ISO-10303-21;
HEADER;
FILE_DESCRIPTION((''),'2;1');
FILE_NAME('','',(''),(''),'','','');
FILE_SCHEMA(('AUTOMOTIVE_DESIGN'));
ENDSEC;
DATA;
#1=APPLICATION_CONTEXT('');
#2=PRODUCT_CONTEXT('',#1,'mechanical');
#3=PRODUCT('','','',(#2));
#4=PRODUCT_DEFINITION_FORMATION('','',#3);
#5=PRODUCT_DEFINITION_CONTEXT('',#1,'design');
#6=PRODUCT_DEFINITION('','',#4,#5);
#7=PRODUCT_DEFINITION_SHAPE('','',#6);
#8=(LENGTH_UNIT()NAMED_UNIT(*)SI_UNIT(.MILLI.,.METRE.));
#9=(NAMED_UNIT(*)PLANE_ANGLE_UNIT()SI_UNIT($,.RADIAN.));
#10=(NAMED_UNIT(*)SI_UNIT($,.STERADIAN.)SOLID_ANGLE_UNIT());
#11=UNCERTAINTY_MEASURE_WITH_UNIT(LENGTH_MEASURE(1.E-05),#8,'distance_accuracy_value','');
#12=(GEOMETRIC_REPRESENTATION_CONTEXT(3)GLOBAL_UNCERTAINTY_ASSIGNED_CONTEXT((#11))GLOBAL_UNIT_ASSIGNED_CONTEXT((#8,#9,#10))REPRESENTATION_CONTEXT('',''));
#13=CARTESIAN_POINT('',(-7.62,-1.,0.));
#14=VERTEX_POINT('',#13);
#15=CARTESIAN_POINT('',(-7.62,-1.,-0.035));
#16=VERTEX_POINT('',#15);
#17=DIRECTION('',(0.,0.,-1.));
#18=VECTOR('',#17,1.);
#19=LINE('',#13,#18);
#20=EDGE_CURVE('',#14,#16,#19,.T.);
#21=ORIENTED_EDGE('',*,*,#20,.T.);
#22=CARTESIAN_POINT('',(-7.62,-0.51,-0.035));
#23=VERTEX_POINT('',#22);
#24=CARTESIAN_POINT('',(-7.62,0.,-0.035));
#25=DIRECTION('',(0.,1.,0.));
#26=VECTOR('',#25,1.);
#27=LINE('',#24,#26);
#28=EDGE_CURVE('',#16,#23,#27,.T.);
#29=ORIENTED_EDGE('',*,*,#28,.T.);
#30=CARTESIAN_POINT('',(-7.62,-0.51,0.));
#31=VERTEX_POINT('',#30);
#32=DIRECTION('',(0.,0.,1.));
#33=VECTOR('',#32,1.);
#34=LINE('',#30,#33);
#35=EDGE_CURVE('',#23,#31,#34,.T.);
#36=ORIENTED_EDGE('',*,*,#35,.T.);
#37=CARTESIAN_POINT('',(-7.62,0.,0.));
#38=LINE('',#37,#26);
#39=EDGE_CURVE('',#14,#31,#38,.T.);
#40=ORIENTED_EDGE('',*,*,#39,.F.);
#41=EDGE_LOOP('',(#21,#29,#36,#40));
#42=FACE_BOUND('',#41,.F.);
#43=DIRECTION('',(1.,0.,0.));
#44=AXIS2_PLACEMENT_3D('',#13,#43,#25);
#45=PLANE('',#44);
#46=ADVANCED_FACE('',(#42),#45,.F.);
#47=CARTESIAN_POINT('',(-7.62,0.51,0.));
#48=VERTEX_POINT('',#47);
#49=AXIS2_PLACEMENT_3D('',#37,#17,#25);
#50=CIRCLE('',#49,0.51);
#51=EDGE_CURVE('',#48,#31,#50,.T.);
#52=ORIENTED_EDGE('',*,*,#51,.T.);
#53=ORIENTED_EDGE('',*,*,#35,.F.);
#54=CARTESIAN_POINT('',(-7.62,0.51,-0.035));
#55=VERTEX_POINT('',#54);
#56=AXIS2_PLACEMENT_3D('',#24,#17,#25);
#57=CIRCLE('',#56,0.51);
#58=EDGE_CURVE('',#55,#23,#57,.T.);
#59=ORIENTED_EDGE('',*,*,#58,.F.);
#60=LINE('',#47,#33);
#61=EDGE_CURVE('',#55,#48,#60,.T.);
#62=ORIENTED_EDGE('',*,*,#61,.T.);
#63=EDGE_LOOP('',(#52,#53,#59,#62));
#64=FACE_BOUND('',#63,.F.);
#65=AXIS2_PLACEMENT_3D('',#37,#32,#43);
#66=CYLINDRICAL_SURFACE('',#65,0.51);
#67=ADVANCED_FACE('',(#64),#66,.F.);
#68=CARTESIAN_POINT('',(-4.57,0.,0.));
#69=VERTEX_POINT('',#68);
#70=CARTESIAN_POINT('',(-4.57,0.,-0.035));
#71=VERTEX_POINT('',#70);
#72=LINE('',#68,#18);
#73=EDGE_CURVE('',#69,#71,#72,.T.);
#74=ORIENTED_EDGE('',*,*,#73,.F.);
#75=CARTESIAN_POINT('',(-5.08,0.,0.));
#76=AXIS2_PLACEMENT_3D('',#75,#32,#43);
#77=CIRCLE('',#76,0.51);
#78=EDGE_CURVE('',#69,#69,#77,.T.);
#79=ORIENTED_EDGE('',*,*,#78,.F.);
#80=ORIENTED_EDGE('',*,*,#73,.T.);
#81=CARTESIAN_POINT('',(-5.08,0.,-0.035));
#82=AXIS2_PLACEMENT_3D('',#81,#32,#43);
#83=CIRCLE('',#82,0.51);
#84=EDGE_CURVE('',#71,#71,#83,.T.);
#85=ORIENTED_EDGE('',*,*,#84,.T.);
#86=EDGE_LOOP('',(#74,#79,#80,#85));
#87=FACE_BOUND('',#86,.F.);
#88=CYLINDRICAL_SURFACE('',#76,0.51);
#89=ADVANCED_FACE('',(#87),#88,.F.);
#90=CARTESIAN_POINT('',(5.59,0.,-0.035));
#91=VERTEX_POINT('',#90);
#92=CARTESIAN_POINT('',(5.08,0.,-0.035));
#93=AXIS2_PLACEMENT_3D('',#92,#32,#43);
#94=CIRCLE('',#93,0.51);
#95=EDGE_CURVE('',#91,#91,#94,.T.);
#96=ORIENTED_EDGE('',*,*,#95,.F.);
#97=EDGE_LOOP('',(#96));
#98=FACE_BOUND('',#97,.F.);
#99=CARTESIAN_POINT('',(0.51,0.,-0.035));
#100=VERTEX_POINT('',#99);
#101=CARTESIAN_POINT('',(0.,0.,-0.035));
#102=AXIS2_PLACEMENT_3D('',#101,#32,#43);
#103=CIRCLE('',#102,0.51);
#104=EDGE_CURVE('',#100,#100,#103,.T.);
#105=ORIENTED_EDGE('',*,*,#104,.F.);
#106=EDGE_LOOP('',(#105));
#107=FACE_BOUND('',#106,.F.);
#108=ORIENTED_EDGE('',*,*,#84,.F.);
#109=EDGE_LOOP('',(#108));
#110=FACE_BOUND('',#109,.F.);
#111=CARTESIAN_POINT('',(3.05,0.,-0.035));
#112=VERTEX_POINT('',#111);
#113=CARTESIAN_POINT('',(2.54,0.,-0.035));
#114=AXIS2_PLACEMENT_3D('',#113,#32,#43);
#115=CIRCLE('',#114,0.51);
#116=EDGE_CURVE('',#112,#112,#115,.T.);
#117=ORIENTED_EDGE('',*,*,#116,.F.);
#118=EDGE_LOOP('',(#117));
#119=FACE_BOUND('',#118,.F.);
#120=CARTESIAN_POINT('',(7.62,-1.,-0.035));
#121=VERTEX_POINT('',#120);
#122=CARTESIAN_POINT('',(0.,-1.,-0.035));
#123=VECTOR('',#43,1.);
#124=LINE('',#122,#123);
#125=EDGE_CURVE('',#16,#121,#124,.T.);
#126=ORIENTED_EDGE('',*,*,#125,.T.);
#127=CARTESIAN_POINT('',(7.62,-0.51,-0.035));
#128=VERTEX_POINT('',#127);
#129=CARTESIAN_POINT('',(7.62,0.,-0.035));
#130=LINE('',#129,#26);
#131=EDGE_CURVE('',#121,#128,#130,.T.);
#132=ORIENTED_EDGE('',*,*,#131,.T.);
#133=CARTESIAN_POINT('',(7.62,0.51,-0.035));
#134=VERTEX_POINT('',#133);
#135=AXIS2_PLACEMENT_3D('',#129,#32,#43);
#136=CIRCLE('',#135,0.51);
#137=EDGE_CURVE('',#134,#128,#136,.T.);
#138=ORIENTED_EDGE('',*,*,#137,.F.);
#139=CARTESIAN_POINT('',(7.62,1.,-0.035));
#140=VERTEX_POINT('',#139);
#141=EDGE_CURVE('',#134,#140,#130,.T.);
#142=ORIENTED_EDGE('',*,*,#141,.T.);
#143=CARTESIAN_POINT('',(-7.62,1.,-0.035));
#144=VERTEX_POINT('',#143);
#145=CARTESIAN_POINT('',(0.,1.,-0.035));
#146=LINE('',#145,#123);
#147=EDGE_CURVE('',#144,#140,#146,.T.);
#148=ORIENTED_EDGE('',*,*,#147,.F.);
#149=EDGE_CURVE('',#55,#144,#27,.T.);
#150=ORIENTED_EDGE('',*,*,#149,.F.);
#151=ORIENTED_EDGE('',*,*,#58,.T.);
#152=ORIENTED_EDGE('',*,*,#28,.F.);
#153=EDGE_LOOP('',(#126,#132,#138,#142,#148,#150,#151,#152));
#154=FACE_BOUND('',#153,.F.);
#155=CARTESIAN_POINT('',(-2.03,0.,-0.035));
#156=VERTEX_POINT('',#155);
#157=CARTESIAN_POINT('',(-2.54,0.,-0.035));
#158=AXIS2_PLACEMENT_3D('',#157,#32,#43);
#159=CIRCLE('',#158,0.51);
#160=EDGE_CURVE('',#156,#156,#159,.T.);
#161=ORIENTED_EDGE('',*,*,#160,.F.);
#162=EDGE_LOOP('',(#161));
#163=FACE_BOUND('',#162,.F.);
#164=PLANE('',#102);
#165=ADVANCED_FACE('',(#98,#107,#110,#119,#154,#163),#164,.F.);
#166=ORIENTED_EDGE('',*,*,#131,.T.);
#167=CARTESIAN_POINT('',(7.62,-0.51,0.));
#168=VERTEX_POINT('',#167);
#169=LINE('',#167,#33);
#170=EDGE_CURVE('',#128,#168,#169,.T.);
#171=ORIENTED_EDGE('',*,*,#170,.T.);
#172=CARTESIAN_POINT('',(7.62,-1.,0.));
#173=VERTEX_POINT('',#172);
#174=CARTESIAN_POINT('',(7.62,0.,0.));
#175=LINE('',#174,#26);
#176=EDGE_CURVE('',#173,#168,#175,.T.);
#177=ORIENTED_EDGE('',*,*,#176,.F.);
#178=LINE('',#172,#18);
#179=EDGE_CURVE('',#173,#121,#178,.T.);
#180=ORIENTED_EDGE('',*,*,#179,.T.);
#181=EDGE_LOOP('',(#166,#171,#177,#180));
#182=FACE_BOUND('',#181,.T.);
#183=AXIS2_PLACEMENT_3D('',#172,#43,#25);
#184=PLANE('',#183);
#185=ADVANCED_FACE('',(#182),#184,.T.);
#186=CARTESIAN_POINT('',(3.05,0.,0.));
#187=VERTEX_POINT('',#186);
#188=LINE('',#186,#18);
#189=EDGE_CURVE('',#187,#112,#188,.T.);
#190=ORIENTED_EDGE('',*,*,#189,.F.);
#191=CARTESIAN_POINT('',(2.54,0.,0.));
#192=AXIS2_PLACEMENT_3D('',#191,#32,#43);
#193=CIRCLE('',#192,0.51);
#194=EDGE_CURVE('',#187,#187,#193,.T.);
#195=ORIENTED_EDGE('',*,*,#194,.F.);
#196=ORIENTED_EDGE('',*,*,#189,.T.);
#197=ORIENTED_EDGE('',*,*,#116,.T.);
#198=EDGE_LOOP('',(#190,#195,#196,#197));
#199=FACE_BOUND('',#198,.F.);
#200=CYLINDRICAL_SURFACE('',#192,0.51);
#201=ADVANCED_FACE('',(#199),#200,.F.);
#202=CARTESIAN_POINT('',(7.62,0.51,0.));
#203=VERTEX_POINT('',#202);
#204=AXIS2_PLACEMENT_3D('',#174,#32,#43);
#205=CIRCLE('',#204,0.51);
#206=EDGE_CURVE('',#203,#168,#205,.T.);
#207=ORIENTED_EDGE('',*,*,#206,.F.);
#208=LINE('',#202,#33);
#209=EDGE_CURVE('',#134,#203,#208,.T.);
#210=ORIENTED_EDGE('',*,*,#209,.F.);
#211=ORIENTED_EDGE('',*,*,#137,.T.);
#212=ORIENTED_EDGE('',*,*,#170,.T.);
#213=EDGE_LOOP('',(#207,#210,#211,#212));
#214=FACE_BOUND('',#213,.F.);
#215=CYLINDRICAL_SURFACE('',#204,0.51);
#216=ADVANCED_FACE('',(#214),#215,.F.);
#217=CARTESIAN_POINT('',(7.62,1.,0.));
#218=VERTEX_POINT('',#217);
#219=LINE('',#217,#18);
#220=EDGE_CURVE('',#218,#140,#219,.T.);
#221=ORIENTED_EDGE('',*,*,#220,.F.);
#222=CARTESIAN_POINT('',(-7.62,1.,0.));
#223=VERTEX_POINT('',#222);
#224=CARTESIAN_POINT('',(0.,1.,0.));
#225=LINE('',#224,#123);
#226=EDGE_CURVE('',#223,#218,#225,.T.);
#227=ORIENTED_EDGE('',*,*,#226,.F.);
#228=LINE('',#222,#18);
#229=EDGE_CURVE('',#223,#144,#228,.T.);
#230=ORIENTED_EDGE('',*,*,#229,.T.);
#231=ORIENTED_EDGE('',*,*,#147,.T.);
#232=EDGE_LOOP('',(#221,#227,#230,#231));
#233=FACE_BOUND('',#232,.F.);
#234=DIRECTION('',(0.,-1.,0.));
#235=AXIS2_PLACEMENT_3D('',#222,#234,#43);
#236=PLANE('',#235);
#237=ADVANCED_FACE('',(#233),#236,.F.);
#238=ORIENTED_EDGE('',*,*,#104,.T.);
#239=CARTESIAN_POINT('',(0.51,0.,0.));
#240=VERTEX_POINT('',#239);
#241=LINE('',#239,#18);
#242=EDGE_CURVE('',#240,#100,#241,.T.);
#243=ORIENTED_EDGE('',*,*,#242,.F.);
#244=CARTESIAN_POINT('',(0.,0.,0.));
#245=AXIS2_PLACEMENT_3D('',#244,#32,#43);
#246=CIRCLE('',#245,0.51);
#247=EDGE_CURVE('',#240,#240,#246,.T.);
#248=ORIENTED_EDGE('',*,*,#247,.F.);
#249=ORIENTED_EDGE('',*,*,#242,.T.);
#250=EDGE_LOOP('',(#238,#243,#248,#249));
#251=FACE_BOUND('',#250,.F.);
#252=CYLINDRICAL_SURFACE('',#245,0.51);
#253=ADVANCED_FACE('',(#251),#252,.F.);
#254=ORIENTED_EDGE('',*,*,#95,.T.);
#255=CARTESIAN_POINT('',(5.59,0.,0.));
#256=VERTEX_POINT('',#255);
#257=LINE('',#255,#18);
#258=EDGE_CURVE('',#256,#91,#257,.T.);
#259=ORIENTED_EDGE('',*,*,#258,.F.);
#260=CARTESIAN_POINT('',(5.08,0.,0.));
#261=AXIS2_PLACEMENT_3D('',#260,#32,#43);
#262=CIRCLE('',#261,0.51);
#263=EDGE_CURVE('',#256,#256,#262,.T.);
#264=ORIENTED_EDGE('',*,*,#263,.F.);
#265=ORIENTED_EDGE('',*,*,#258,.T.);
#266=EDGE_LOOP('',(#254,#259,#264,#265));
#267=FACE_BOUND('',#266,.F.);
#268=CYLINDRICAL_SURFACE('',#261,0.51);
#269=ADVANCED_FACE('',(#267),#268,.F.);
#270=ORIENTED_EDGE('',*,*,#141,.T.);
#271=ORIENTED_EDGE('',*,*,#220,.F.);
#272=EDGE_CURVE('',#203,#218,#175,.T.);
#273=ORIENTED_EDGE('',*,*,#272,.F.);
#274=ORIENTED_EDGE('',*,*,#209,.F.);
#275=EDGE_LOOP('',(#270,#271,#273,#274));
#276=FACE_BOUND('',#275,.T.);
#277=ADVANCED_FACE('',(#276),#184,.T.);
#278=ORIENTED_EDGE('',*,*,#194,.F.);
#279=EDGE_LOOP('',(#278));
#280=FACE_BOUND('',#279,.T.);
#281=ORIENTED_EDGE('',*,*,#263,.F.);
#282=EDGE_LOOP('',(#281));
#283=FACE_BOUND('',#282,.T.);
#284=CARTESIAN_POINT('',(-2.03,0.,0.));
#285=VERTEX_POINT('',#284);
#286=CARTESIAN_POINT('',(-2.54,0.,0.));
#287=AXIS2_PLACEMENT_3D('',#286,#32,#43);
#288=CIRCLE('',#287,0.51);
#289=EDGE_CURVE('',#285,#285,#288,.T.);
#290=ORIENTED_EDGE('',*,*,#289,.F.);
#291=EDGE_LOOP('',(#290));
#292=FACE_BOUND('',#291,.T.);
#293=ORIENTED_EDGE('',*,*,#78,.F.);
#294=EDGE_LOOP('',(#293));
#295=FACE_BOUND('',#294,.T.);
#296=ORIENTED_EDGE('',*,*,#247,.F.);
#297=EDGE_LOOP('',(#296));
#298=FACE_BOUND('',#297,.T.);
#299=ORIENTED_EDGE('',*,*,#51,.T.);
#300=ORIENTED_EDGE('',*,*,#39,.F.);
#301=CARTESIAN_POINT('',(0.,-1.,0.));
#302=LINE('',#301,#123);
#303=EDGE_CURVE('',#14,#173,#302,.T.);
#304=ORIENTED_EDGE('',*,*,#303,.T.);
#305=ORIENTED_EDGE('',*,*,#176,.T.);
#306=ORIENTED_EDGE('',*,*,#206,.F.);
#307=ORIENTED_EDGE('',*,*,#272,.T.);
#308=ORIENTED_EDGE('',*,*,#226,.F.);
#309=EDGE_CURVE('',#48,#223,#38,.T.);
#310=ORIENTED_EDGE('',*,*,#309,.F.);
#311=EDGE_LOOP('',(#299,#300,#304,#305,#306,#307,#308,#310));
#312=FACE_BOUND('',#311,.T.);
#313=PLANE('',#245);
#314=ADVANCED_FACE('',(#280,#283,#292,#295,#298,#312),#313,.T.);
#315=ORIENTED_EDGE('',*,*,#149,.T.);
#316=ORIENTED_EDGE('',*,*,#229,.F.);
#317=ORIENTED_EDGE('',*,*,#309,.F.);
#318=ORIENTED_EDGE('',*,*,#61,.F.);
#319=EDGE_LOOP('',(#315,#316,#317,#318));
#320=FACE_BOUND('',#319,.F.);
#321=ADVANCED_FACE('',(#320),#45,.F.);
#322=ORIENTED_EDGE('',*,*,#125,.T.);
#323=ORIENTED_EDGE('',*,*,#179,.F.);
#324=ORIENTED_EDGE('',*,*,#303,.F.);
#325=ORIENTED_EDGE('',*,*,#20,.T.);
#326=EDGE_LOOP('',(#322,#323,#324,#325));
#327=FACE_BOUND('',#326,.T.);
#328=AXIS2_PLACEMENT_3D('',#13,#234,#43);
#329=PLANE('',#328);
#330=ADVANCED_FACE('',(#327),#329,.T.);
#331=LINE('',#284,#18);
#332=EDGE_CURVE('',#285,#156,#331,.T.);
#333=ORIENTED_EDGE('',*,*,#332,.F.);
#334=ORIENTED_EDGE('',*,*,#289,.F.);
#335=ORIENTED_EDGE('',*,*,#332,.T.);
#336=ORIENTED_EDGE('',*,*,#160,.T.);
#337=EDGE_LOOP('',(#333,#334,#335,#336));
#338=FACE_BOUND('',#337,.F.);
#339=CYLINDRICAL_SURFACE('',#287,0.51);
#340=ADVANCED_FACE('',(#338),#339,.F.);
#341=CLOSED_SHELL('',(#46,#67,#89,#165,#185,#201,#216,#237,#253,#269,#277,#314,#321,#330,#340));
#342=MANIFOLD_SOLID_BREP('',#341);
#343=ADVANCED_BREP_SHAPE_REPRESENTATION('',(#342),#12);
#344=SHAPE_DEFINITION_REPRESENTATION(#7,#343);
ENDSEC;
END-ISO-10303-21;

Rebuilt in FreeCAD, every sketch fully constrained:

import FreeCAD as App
import Part
import Sketcher
from FreeCAD import Vector
Q = App.Units.Quantity


def add_polygon(sketch, points):
    """Adds a closed chain of lines whose ends are joined by coincident constraints."""
    first, n = sketch.GeometryCount, len(points)
    for a, b in zip(points, points[1:] + points[:1]):
        sketch.addGeometry(Part.LineSegment(App.Vector(*a, 0), App.Vector(*b, 0)), False)
    for i in range(n):
        sketch.addConstraint(Sketcher.Constraint("Coincident", first + i, 2, first + (i + 1) % n, 1))

doc = App.newDocument("Part")
body = doc.addObject("PartDesign::Body", "Body")

sketch1 = body.newObject("Sketcher::SketchObject", "Sketch")
sketch1.AttachmentSupport = (doc.getObject("XY_Plane"), [""])
sketch1.MapMode = "FlatFace"
add_polygon(sketch1, [(-7.6, 1), (-7.6, -1), (7.6, -1), (7.6, 1)])
sketch1.addConstraint([
    Sketcher.Constraint("Vertical", 0),
    Sketcher.Constraint("Horizontal", 1),
    Sketcher.Constraint("Vertical", 2),
    Sketcher.Constraint("Horizontal", 3),
    Sketcher.Constraint("Symmetric", 0, 2, 2, 2, -1, 1),
    Sketcher.Constraint("DistanceY", 0, 2, 0, 1, Q("2 mm")),
    Sketcher.Constraint("DistanceX", 1, 1, 1, 2, Q("15.24 mm")),
])
pad1 = body.newObject("PartDesign::Pad", "Pad")
pad1.Profile = sketch1
pad1.Length = 0.035
pad1.Reversed = True

sketch2 = body.newObject("Sketcher::SketchObject", "Sketch001")
sketch2.AttachmentSupport = (doc.getObject("XY_Plane"), [""])
sketch2.MapMode = "FlatFace"
sketch2.addGeometry(Part.Circle(Vector(-7.6, 0, 0), Vector(0, 0, 1), 0.5), False)
sketch2.addConstraint([
    Sketcher.Constraint("PointOnObject", 0, 3, -1),
    Sketcher.Constraint("Diameter", 0, Q("1.02 mm")),
    Sketcher.Constraint("DistanceX", 0, 3, -1, 1, Q("7.62 mm")),
])
pocket1 = body.newObject("PartDesign::Pocket", "Pocket")
pocket1.Profile = sketch2
pocket1.Type = "ThroughAll"
doc.recompute()

linearpattern = body.newObject("PartDesign::LinearPattern", "LinearPattern")
linearpattern.Originals = [pocket1]
linearpattern.Direction = (doc.getObject("X_Axis"), [""])
linearpattern.Mode = "offset"
linearpattern.Offset = 2.54
linearpattern.Occurrences = 7
body.Tip = linearpattern

doc.recompute()
